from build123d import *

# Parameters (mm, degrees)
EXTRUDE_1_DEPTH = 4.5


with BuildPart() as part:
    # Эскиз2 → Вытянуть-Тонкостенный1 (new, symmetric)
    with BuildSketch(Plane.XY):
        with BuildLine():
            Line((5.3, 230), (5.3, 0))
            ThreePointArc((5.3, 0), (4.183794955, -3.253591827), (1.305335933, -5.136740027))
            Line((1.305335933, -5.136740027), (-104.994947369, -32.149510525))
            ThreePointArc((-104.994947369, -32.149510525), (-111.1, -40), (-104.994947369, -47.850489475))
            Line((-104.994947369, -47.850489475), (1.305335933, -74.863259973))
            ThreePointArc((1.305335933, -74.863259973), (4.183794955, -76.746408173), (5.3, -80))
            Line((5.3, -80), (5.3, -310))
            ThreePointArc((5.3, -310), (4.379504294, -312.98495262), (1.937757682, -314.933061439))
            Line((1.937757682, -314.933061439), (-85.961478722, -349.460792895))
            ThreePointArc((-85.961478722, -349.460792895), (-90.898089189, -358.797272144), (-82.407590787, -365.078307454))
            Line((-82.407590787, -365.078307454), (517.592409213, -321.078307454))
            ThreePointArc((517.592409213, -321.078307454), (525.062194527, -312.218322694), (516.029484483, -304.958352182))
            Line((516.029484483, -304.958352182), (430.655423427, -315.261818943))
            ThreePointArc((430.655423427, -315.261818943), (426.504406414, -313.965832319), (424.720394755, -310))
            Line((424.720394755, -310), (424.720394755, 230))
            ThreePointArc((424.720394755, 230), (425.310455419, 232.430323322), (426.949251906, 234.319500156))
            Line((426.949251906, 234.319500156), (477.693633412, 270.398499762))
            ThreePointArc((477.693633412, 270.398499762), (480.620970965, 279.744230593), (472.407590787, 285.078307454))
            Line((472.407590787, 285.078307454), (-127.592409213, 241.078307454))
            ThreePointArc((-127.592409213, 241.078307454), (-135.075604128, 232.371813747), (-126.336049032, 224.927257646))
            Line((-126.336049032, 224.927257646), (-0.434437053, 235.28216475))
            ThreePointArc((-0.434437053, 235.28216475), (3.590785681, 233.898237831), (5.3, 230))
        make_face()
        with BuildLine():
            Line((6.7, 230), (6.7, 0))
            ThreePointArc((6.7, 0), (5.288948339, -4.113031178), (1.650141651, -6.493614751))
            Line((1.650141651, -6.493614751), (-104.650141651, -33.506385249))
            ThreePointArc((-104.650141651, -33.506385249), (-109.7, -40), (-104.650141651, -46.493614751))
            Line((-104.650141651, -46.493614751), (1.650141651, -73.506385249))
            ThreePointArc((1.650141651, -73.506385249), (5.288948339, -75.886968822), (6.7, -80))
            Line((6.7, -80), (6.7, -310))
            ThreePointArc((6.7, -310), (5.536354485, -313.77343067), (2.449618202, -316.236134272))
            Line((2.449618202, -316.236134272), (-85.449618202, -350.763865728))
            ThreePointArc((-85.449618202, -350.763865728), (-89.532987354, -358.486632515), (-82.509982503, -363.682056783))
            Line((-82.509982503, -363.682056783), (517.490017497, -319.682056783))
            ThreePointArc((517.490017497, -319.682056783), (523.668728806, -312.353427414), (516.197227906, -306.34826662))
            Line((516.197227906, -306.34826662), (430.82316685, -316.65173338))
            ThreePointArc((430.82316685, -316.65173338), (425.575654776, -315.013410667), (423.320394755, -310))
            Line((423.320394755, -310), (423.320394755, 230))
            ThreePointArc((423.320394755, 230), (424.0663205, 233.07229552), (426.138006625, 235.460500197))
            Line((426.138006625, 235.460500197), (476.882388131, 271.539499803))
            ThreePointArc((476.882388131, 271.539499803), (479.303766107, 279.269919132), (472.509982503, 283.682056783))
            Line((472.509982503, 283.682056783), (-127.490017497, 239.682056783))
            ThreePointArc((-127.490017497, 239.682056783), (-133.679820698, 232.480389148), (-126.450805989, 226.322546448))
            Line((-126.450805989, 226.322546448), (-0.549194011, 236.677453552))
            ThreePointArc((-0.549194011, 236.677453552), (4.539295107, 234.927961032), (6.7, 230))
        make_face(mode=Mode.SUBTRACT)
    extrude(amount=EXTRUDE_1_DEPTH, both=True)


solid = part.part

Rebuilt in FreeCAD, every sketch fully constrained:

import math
import FreeCAD as App
import Part
import Sketcher

doc = App.newDocument("Part")
body = doc.addObject("PartDesign::Body", "Body")

# Sketch on XY plane
sketch1 = body.newObject("Sketcher::SketchObject", "Sketch")
sketch1.AttachmentSupport = (doc.getObject("XY_Plane"), [""])
sketch1.MapMode = "FlatFace"
sketch1.addGeometry([
    Part.LineSegment(App.Vector(5.3, 230, 0), App.Vector(5.3, 0, 0)),  # 0
    Part.ArcOfCircle(Part.Circle(App.Vector(0, 0, 0), App.Vector(0, 0, 1), 5.3), math.radians(-76), math.radians(0)),  # 1
    Part.LineSegment(App.Vector(1.3, -5.1, 0), App.Vector(-105, -32.1, 0)),  # 2
    Part.ArcOfCircle(Part.Circle(App.Vector(-103, -40, 0), App.Vector(0, 0, 1), 8.1), math.radians(104), math.radians(256)),  # 3
    Part.LineSegment(App.Vector(-105, -47.9, 0), App.Vector(1.3, -74.9, 0)),  # 4
    Part.ArcOfCircle(Part.Circle(App.Vector(0, -80, 0), App.Vector(0, 0, 1), 5.3), math.radians(0), math.radians(76)),  # 5
    Part.LineSegment(App.Vector(5.3, -80, 0), App.Vector(5.3, -310, 0)),  # 6
    Part.ArcOfCircle(Part.Circle(App.Vector(0, -310, 0), App.Vector(0, 0, 1), 5.3), math.radians(-69), math.radians(0)),  # 7
    Part.LineSegment(App.Vector(1.9, -314.9, 0), App.Vector(-86, -349.5, 0)),  # 8
    Part.ArcOfCircle(Part.Circle(App.Vector(-83, -357, 0), App.Vector(0, 0, 1), 8.1), math.radians(111), math.radians(274)),  # 9
    Part.LineSegment(App.Vector(-82.4, -365.1, 0), App.Vector(517.6, -321.1, 0)),  # 10
    Part.ArcOfCircle(Part.Circle(App.Vector(517, -313, 0), App.Vector(0, 0, 1), 8.1), math.radians(-86), math.radians(97)),  # 11
    Part.LineSegment(App.Vector(516, -305, 0), App.Vector(430.7, -315.3, 0)),  # 12
    Part.ArcOfCircle(Part.Circle(App.Vector(430, -310, 0), App.Vector(0, 0, 1), 5.3), math.radians(-180), math.radians(-83)),  # 13
    Part.LineSegment(App.Vector(424.7, -310, 0), App.Vector(424.7, 230, 0)),  # 14
    Part.ArcOfCircle(Part.Circle(App.Vector(430, 230, 0), App.Vector(0, 0, 1), 5.3), math.radians(125), math.radians(180)),  # 15
    Part.LineSegment(App.Vector(426.9, 234.3, 0), App.Vector(477.7, 270.4, 0)),  # 16
    Part.ArcOfCircle(Part.Circle(App.Vector(473, 277, 0), App.Vector(0, 0, 1), 8.1), math.radians(-55), math.radians(94)),  # 17
    Part.LineSegment(App.Vector(472.4, 285.1, 0), App.Vector(-127.6, 241.1, 0)),  # 18
    Part.ArcOfCircle(Part.Circle(App.Vector(-127, 233, 0), App.Vector(0, 0, 1), 8.1), math.radians(94), math.radians(275)),  # 19
    Part.LineSegment(App.Vector(-126.3, 224.9, 0), App.Vector(-0.4, 235.3, 0)),  # 20
    Part.ArcOfCircle(Part.Circle(App.Vector(0, 230, 0), App.Vector(0, 0, 1), 5.3), math.radians(0), math.radians(95)),  # 21
    Part.LineSegment(App.Vector(6.7, 0, 0), App.Vector(6.7, 230, 0)),  # 22
    Part.ArcOfCircle(Part.Circle(App.Vector(0, 230, 0), App.Vector(0, 0, 1), 6.7), math.radians(0), math.radians(95)),  # 23
    Part.LineSegment(App.Vector(-0.5, 236.7, 0), App.Vector(-126.5, 226.3, 0)),  # 24
    Part.ArcOfCircle(Part.Circle(App.Vector(-127, 233, 0), App.Vector(0, 0, 1), 6.7), math.radians(94), math.radians(275)),  # 25
    Part.LineSegment(App.Vector(-127.5, 239.7, 0), App.Vector(472.5, 283.7, 0)),  # 26
    Part.ArcOfCircle(Part.Circle(App.Vector(473, 277, 0), App.Vector(0, 0, 1), 6.7), math.radians(-55), math.radians(94)),  # 27
    Part.LineSegment(App.Vector(476.9, 271.5, 0), App.Vector(426.1, 235.5, 0)),  # 28
    Part.ArcOfCircle(Part.Circle(App.Vector(430, 230, 0), App.Vector(0, 0, 1), 6.7), math.radians(125), math.radians(180)),  # 29
    Part.LineSegment(App.Vector(423.3, 230, 0), App.Vector(423.3, -310, 0)),  # 30
    Part.ArcOfCircle(Part.Circle(App.Vector(430, -310, 0), App.Vector(0, 0, 1), 6.7), math.radians(180), math.radians(277)),  # 31
    Part.LineSegment(App.Vector(430.8, -316.7, 0), App.Vector(516.2, -306.3, 0)),  # 32
    Part.ArcOfCircle(Part.Circle(App.Vector(517, -313, 0), App.Vector(0, 0, 1), 6.7), math.radians(-86), math.radians(97)),  # 33
    Part.LineSegment(App.Vector(517.5, -319.7, 0), App.Vector(-82.5, -363.7, 0)),  # 34
    Part.ArcOfCircle(Part.Circle(App.Vector(-83, -357, 0), App.Vector(0, 0, 1), 6.7), math.radians(111), math.radians(274)),  # 35
    Part.LineSegment(App.Vector(-85.4, -350.8, 0), App.Vector(2.4, -316.2, 0)),  # 36
    Part.ArcOfCircle(Part.Circle(App.Vector(0, -310, 0), App.Vector(0, 0, 1), 6.7), math.radians(-69), math.radians(0)),  # 37
    Part.LineSegment(App.Vector(6.7, -310, 0), App.Vector(6.7, -80, 0)),  # 38
    Part.ArcOfCircle(Part.Circle(App.Vector(0, -80, 0), App.Vector(0, 0, 1), 6.7), math.radians(0), math.radians(76)),  # 39
    Part.LineSegment(App.Vector(1.7, -73.5, 0), App.Vector(-104.7, -46.5, 0)),  # 40
    Part.ArcOfCircle(Part.Circle(App.Vector(-103, -40, 0), App.Vector(0, 0, 1), 6.7), math.radians(104), math.radians(256)),  # 41
    Part.LineSegment(App.Vector(-104.7, -33.5, 0), App.Vector(1.7, -6.5, 0)),  # 42
    Part.ArcOfCircle(Part.Circle(App.Vector(0, 0, 0), App.Vector(0, 0, 1), 6.7), math.radians(-76), math.radians(0)),  # 43
], False)
sketch1.addConstraint([
    Sketcher.Constraint("Tangent", 0, 2, 1, 2),
    Sketcher.Constraint("Tangent", 1, 1, 2, 1),
    Sketcher.Constraint("Tangent", 2, 2, 3, 1),
    Sketcher.Constraint("Tangent", 3, 2, 4, 1),
    Sketcher.Constraint("Tangent", 4, 2, 5, 2),
    Sketcher.Constraint("Tangent", 5, 1, 6, 1),
    Sketcher.Constraint("Tangent", 6, 2, 7, 2),
    Sketcher.Constraint("Tangent", 7, 1, 8, 1),
    Sketcher.Constraint("Tangent", 8, 2, 9, 1),
    Sketcher.Constraint("Tangent", 9, 2, 10, 1),
    Sketcher.Constraint("Tangent", 10, 2, 11, 1),
    Sketcher.Constraint("Tangent", 11, 2, 12, 1),
    Sketcher.Constraint("Tangent", 12, 2, 13, 2),
    Sketcher.Constraint("Tangent", 13, 1, 14, 1),
    Sketcher.Constraint("Tangent", 14, 2, 15, 2),
    Sketcher.Constraint("Tangent", 15, 1, 16, 1),
    Sketcher.Constraint("Tangent", 16, 2, 17, 1),
    Sketcher.Constraint("Tangent", 17, 2, 18, 1),
    Sketcher.Constraint("Tangent", 18, 2, 19, 1),
    Sketcher.Constraint("Tangent", 19, 2, 20, 1),
    Sketcher.Constraint("Tangent", 20, 2, 21, 2),
    Sketcher.Constraint("Tangent", 21, 1, 0, 1),
    Sketcher.Constraint("Tangent", 22, 2, 23, 1),
    Sketcher.Constraint("Tangent", 23, 2, 24, 1),
    Sketcher.Constraint("Tangent", 24, 2, 25, 2),
    Sketcher.Constraint("Tangent", 25, 1, 26, 1),
    Sketcher.Constraint("Tangent", 26, 2, 27, 2),
    Sketcher.Constraint("Tangent", 27, 1, 28, 1),
    Sketcher.Constraint("Tangent", 28, 2, 29, 1),
    Sketcher.Constraint("Tangent", 29, 2, 30, 1),
    Sketcher.Constraint("Tangent", 30, 2, 31, 1),
    Sketcher.Constraint("Tangent", 31, 2, 32, 1),
    Sketcher.Constraint("Tangent", 32, 2, 33, 2),
    Sketcher.Constraint("Tangent", 33, 1, 34, 1),
    Sketcher.Constraint("Tangent", 34, 2, 35, 2),
    Sketcher.Constraint("Tangent", 35, 1, 36, 1),
    Sketcher.Constraint("Tangent", 36, 2, 37, 1),
    Sketcher.Constraint("Tangent", 37, 2, 38, 1),
    Sketcher.Constraint("Tangent", 38, 2, 39, 1),
    Sketcher.Constraint("Tangent", 39, 2, 40, 1),
    Sketcher.Constraint("Tangent", 40, 2, 41, 2),
    Sketcher.Constraint("Tangent", 41, 1, 42, 1),
    Sketcher.Constraint("Tangent", 42, 2, 43, 1),
    Sketcher.Constraint("Tangent", 43, 2, 22, 1),
    Sketcher.Constraint("Vertical", 0),
    Sketcher.Constraint("Vertical", 6),
    Sketcher.Constraint("Vertical", 14),
    Sketcher.Constraint("Vertical", 22),
    Sketcher.Constraint("Vertical", 30),
    Sketcher.Constraint("Vertical", 38),
    Sketcher.Constraint("Coincident", 1, 3, -1, 1),
    Sketcher.Constraint("Coincident", 43, 3, -1, 1),
    Sketcher.Constraint("Coincident", 23, 3, 21, 3),
    Sketcher.Constraint("Coincident", 25, 3, 19, 3),
    Sketcher.Constraint("Coincident", 27, 3, 17, 3),
    Sketcher.Constraint("Coincident", 29, 3, 15, 3),
    Sketcher.Constraint("Coincident", 31, 3, 13, 3),
    Sketcher.Constraint("Coincident", 33, 3, 11, 3),
    Sketcher.Constraint("Coincident", 35, 3, 9, 3),
    Sketcher.Constraint("Coincident", 37, 3, 7, 3),
    Sketcher.Constraint("Coincident", 39, 3, 5, 3),
    Sketcher.Constraint("Coincident", 41, 3, 3, 3),
    Sketcher.Constraint("Equal", 1, 5),
    Sketcher.Constraint("Equal", 5, 7),
    Sketcher.Constraint("Equal", 3, 9),
    Sketcher.Constraint("Equal", 9, 11),
    Sketcher.Constraint("Equal", 7, 13),
    Sketcher.Constraint("Equal", 13, 15),
    Sketcher.Constraint("Equal", 11, 17),
    Sketcher.Constraint("Equal", 17, 19),
    Sketcher.Constraint("Equal", 15, 21),
    Sketcher.Constraint("Equal", 23, 25),
    Sketcher.Constraint("Equal", 25, 27),
    Sketcher.Constraint("Equal", 27, 29),
    Sketcher.Constraint("Equal", 31, 33),
    Sketcher.Constraint("Equal", 33, 35),
    Sketcher.Constraint("Equal", 35, 37),
    Sketcher.Constraint("Equal", 39, 41),
    Sketcher.Constraint("PointOnObject", 5, 3, -2),
    Sketcher.Constraint("Parallel", 10, 18),
    Sketcher.Constraint("Parallel", 20, 24),
    Sketcher.Constraint("Horizontal", 7, 3, 13, 3),
    Sketcher.Constraint("Horizontal", 15, 3, 21, 3),
    Sketcher.Constraint("Vertical", 2, 2, 3, 2),
    Sketcher.Constraint("Equal", 0, 6),
    Sketcher.Constraint("Equal", 10, 18),
    Sketcher.Constraint("Radius", 1, 5.3),
    Sketcher.Constraint("Radius", 3, 8.1),
    Sketcher.Constraint("DistanceY", 0, 2, 0, 1, 230.0),
    Sketcher.Constraint("DistanceY", 14, 1, 14, 2, 540.0),
    Sketcher.Constraint("DistanceX", 3, 3, -1, 1, 103.0),
    Sketcher.Constraint("DistanceX", 9, 3, -1, 1, 83.0),
    Sketcher.Constraint("DistanceY", 9, 3, -1, 1, 357.0),
    Sketcher.Constraint("DistanceX", -1, 1, 11, 3, 517.0),
    Sketcher.Constraint("DistanceY", 11, 3, -1, 1, 313.0),
    Sketcher.Constraint("DistanceX", -1, 1, 17, 3, 473.0),
    Sketcher.Constraint("DistanceY", -1, 1, 17, 3, 277.0),
    Sketcher.Constraint("DistanceY", -1, 1, 15, 1, 234.3195),
])
pad1 = body.newObject("PartDesign::Pad", "Pad")
pad1.Profile = sketch1
pad1.Length = 9
pad1.Midplane = True

doc.recompute()
